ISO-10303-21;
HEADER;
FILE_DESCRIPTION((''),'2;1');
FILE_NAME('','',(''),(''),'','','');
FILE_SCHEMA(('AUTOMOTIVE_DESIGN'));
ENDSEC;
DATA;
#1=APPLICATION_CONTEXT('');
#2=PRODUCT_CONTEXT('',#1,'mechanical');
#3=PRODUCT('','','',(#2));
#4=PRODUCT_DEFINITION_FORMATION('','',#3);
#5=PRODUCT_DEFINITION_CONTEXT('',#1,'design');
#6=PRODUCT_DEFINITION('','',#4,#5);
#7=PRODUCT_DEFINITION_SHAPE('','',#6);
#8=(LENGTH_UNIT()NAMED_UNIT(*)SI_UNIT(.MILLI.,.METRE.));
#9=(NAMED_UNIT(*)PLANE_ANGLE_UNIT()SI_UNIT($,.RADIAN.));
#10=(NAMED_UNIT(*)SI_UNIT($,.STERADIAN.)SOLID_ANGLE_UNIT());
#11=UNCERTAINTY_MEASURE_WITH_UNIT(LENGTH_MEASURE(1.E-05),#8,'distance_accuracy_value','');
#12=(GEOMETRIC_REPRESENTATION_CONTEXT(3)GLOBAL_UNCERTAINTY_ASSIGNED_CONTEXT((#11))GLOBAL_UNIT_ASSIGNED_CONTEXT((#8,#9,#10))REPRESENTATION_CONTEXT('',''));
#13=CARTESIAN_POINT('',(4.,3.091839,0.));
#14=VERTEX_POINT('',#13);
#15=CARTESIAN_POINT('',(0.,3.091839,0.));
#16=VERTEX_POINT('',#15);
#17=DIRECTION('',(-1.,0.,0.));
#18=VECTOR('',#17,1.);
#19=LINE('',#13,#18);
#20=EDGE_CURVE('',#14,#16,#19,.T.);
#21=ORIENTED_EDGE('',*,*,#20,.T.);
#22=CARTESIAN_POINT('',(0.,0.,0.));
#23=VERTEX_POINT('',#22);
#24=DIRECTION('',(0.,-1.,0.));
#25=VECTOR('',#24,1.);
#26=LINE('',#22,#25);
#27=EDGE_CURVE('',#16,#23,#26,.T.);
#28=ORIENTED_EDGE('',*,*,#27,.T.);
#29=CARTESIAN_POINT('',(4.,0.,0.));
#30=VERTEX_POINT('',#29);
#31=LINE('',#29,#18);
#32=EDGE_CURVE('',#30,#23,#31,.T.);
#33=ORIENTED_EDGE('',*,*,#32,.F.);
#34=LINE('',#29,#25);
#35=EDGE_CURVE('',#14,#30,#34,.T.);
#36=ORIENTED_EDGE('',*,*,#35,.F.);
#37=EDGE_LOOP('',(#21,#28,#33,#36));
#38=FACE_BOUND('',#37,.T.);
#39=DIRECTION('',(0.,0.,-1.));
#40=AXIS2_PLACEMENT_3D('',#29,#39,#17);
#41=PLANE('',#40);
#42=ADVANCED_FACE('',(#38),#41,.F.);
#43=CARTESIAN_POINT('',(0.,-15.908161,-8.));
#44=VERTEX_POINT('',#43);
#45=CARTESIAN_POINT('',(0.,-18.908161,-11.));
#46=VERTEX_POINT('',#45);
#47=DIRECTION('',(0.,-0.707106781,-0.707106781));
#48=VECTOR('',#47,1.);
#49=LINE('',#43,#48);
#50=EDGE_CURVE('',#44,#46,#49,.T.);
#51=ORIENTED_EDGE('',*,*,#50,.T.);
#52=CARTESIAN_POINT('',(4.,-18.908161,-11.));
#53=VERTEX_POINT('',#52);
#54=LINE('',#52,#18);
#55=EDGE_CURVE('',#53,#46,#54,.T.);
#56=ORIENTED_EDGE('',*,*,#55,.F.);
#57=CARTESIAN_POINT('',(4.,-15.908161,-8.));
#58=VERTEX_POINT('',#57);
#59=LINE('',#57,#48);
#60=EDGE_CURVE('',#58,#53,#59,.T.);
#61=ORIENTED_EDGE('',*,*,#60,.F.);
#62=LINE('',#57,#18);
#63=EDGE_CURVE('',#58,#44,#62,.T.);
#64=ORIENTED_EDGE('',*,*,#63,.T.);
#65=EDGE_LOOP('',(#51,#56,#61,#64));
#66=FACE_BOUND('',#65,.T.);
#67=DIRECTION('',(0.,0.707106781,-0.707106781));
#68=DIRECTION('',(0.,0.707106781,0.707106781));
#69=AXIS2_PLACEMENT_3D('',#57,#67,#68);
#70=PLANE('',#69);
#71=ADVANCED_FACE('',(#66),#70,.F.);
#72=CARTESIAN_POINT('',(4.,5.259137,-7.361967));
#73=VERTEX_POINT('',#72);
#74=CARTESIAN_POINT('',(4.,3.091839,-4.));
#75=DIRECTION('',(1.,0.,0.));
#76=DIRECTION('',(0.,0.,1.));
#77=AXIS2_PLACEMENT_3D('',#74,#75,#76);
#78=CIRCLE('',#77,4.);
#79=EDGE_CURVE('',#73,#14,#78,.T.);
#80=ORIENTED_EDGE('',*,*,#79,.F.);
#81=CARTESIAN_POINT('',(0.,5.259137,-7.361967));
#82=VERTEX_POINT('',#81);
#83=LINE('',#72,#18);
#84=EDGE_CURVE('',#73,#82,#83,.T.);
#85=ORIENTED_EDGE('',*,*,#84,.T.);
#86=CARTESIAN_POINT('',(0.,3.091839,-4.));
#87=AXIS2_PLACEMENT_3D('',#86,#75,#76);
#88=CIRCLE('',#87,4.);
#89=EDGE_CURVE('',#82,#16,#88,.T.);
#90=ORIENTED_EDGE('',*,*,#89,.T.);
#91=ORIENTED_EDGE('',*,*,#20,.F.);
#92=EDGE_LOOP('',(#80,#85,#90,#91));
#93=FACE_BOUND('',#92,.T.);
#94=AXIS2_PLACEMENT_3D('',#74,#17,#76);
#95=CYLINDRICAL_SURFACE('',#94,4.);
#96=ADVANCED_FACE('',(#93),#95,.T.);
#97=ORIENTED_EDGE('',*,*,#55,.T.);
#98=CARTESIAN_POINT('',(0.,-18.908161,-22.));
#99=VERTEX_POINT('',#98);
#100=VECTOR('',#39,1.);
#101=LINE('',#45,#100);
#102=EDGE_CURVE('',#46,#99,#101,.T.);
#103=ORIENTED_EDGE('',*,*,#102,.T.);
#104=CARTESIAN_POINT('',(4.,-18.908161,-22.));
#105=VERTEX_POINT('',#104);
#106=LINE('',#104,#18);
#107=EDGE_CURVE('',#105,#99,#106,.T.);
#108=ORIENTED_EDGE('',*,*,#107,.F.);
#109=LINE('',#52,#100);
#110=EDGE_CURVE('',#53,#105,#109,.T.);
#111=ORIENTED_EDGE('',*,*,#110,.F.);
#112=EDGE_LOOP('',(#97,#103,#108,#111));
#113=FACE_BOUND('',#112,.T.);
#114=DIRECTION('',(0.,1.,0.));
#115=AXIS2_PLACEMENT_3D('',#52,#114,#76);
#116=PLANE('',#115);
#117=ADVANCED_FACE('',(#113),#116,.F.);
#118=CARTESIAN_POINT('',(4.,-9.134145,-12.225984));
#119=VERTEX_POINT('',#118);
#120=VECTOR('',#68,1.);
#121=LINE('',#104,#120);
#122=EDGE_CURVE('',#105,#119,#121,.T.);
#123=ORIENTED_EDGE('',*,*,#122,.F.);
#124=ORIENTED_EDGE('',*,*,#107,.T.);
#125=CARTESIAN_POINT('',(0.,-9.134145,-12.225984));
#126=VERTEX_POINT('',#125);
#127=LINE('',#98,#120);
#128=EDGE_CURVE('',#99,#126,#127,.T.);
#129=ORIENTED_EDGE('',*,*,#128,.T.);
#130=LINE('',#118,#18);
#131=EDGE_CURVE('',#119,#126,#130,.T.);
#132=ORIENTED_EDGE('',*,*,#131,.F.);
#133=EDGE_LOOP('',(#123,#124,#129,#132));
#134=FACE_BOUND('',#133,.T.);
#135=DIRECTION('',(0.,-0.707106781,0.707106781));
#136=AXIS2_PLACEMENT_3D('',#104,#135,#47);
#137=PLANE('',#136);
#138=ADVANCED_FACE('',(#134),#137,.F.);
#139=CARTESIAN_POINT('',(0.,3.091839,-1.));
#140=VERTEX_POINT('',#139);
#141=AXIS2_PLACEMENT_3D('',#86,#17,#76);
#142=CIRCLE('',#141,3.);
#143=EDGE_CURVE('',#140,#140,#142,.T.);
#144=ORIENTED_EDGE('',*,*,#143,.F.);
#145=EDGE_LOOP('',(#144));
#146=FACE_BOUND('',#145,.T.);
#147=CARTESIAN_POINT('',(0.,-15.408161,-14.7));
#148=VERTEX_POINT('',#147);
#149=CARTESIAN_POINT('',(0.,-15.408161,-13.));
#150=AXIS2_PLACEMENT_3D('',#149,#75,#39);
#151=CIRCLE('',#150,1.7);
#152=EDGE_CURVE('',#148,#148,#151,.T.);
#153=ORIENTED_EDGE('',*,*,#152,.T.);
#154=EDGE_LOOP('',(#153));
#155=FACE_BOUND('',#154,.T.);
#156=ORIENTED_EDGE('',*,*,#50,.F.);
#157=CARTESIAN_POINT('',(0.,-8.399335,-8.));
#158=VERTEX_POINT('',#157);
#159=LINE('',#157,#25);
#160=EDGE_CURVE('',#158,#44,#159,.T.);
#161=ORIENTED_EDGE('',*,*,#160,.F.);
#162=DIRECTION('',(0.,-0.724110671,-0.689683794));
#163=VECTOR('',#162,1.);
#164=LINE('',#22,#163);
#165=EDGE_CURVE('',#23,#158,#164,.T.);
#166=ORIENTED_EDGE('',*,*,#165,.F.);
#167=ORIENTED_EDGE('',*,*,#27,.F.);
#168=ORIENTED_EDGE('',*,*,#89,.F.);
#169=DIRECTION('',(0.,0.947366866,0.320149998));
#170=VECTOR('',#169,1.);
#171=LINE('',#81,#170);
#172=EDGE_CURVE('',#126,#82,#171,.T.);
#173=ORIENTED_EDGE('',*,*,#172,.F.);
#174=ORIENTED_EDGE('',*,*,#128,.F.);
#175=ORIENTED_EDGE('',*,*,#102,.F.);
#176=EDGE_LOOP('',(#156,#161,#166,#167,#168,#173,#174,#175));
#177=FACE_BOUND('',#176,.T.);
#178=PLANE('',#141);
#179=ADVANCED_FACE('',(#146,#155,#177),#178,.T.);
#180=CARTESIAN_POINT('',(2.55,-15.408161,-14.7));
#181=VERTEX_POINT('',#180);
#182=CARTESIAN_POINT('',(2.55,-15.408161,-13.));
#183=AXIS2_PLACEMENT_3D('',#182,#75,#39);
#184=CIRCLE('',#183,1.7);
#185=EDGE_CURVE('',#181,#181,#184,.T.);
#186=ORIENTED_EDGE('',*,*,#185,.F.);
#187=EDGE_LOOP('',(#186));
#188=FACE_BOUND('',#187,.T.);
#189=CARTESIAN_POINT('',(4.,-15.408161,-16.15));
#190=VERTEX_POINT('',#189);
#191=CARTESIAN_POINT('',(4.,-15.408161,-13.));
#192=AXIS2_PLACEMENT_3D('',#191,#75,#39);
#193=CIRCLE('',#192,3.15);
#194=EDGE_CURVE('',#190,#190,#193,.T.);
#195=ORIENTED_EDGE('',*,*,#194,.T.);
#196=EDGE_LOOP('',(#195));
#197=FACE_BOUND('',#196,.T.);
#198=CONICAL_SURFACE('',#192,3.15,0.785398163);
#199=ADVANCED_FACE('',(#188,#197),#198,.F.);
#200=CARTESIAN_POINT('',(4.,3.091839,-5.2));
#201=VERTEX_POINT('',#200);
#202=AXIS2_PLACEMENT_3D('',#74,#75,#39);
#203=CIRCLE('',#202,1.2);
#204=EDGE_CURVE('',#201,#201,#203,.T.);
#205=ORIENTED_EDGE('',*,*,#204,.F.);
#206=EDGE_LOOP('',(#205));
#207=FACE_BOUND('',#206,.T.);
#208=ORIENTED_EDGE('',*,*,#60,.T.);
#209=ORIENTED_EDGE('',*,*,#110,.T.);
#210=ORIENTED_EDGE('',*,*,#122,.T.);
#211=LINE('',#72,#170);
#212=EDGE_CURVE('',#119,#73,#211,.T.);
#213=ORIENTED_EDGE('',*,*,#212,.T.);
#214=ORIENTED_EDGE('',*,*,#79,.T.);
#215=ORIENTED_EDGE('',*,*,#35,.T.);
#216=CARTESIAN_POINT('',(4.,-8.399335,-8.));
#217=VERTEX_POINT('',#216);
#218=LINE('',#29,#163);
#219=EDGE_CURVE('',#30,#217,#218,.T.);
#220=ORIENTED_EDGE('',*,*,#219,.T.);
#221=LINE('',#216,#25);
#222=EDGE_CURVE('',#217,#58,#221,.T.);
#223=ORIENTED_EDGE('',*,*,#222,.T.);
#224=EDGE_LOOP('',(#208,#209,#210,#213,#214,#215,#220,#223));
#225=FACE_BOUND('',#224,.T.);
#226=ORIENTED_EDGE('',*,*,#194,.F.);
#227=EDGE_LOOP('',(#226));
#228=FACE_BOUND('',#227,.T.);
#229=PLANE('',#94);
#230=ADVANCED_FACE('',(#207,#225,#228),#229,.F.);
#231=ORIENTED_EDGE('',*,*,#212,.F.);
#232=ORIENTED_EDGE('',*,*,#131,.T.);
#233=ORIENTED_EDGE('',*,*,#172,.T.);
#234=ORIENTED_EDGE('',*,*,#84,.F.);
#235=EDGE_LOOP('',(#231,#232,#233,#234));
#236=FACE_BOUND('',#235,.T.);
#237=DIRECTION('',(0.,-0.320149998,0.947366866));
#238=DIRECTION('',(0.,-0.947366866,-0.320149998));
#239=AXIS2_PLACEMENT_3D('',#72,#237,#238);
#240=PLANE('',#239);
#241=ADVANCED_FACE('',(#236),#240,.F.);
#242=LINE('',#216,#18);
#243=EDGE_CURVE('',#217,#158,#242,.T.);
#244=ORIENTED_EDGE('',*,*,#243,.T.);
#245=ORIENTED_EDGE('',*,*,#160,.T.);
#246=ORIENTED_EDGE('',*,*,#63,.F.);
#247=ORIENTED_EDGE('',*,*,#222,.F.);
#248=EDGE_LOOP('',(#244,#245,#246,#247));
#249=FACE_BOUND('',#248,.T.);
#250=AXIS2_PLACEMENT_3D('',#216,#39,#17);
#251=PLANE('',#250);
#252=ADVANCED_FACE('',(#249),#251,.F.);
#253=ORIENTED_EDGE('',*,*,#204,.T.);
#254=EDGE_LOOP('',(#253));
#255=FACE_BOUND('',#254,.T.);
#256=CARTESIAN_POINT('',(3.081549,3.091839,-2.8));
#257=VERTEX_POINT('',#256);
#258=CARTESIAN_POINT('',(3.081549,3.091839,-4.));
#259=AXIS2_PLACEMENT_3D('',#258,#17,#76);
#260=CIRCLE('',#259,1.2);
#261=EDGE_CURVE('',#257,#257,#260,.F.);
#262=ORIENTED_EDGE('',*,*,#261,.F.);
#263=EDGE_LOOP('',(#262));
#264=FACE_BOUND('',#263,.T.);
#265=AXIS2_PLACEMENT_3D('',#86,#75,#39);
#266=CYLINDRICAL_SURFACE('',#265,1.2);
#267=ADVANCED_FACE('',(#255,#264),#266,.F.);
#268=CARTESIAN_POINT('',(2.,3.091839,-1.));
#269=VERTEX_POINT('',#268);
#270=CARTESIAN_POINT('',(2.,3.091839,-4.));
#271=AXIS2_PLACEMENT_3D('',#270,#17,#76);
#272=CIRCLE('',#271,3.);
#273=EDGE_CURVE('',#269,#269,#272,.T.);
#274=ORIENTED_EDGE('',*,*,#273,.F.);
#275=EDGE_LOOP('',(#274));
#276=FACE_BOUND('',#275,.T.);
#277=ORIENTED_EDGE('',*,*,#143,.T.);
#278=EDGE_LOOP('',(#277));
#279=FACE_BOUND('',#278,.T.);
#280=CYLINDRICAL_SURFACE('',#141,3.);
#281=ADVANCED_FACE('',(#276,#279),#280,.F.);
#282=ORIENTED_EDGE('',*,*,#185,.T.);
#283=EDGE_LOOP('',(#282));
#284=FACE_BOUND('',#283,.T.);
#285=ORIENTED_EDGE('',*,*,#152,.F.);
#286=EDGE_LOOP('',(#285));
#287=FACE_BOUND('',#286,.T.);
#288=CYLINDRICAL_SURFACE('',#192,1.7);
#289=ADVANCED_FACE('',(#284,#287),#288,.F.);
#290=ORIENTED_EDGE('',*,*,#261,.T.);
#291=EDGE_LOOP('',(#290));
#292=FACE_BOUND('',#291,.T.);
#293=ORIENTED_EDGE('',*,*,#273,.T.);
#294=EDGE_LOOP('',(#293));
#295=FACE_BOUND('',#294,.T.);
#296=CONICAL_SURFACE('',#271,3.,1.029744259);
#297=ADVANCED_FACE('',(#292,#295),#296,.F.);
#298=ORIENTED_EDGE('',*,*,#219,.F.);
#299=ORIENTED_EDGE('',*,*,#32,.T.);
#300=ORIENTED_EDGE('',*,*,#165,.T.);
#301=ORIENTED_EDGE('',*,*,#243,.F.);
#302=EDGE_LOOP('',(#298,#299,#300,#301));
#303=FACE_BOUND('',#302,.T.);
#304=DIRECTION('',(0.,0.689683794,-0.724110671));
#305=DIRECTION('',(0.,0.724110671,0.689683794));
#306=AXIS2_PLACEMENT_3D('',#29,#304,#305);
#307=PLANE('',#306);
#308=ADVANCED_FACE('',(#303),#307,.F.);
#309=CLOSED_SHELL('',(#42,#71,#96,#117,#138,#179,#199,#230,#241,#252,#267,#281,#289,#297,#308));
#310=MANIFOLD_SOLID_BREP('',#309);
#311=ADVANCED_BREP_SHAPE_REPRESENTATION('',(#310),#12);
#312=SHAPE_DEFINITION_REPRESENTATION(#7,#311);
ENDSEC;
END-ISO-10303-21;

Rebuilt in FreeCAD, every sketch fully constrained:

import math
import FreeCAD as App
import Part
import Sketcher

V = App.Vector
Q = App.Units.Quantity

doc = App.newDocument("Part")
params = doc.addObject("Spreadsheet::Sheet", "Params")
for row, (alias, value) in enumerate([
    ("sketch1_radius", "4 mm"),
    ("sketch1_height", "11 mm"),
    ("pad1_length", "4 mm"),
    ("sketch2_diameter", "6 mm"),
    ("hole_diameter", "6 mm"),
    ("hole_depth", "2 mm"),
    ("sketch3_diameter", "2.4 mm"),
    ("sketch4_diameter", "3.4 mm"),
    ("hole2_diameter", "3.4 mm"),
    ("hole2_csink_diameter", "6.3 mm"),
], start=1):
    params.set(f"A{row}", alias)
    params.set(f"B{row}", "=" + value)
    params.setAlias(f"B{row}", alias)

body = doc.addObject("PartDesign::Body", "Body")

sketch1 = doc.addObject("Sketcher::SketchObject", "Sketch")
body.addObject(sketch1)
sketch1.AttachmentSupport = (doc.YZ_Plane, [""])
sketch1.MapMode = "FlatFace"
sketch1.addGeometry([
    Part.LineSegment(V(3.1, 0, 0), V(0, 0, 0)),
    Part.LineSegment(V(0, 0, 0), V(-8.4, -8, 0)),
    Part.LineSegment(V(-8.4, -8, 0), V(-15.9, -8, 0)),
    Part.LineSegment(V(-15.9, -8, 0), V(-18.9, -11, 0)),
    Part.LineSegment(V(-18.9, -11, 0), V(-18.9, -22, 0)),
    Part.LineSegment(V(-18.9, -22, 0), V(-9.1, -12.2, 0)),
    Part.LineSegment(V(-9.1, -12.2, 0), V(5.3, -7.4, 0)),
    Part.ArcOfCircle(Part.Circle(V(3.1, -4, 0), V(0, 0, 1), 4), math.radians(-57), math.radians(90)),
], False)
sketch1.addConstraint([
    Sketcher.Constraint("Coincident", 0, 2, 1, 1),
    Sketcher.Constraint("Coincident", 1, 2, 2, 1),
    Sketcher.Constraint("Coincident", 2, 2, 3, 1),
    Sketcher.Constraint("Coincident", 3, 2, 4, 1),
    Sketcher.Constraint("Coincident", 4, 2, 5, 1),
    Sketcher.Constraint("Coincident", 5, 2, 6, 1),
    Sketcher.Constraint("Coincident", 6, 2, 7, 1),
    Sketcher.Constraint("Tangent", 7, 2, 0, 1),
    Sketcher.Constraint("Horizontal", 0),
    Sketcher.Constraint("Horizontal", 2),
    Sketcher.Constraint("Vertical", 4),
    Sketcher.Constraint("Coincident", 0, 2, -1, 1),
    Sketcher.Constraint("Parallel", 3, 5),
    Sketcher.Constraint("Radius", 7, 4.0),
    Sketcher.Constraint("DistanceY", 4, 2, 4, 1, 11.0),
    Sketcher.Constraint("Angle", 3, Q("-135 deg")),
    Sketcher.Constraint("DistanceY", 1, 2, -1, 1, 8.0),
    Sketcher.Constraint("DistanceY", 3, 2, -1, 1, 11.0),
    Sketcher.Constraint("DistanceX", 2, 2, 7, 3, 19.0),
    Sketcher.Constraint("DistanceX", 0, 2, 0, 1, 3.091839),
    Sketcher.Constraint("Distance", 1, 11.599519),
    Sketcher.Constraint("DistanceX", 5, 2, 1, 2, 0.73481),
    Sketcher.Constraint("Distance", 6, 15.192934),
])
sketch1.setExpression("Constraints[13]", "Params.sketch1_radius")
sketch1.setExpression("Constraints[14]", "Params.sketch1_height")
pad1 = doc.addObject("PartDesign::Pad", "Pad")
body.addObject(pad1)
pad1.Profile = sketch1
pad1.setExpression("Length", "Params.pad1_length")

sketch2 = doc.addObject("Sketcher::SketchObject", "Sketch001")
body.addObject(sketch2)
sketch2.AttachmentSupport = (doc.YZ_Plane, [""])
sketch2.MapMode = "FlatFace"
sketch2.addGeometry(Part.Circle(V(3.1, -4, 0), V(0, 0, 1), 3), False)
sketch2.addConstraint([
    Sketcher.Constraint("Diameter", 0, 6.0),
    Sketcher.Constraint("DistanceY", 0, 3, -1, 1, 4.0),
    Sketcher.Constraint("DistanceX", -1, 1, 0, 3, 3.091839),
])
sketch2.setExpression("Constraints[0]", "Params.sketch2_diameter")
doc.recompute()
hole = doc.addObject("PartDesign::Hole", "Hole")
body.addObject(hole)
hole.Profile = sketch2
hole.ThreadType = "None"
hole.setExpression("Diameter", "Params.hole_diameter")
hole.DepthType = "Dimension"
hole.setExpression("Depth", "Params.hole_depth")
hole.DrillPoint = "Angled"
hole.DrillPointAngle = 118
hole.Reversed = True

sketch3 = doc.addObject("Sketcher::SketchObject", "Sketch002")
body.addObject(sketch3)
sketch3.AttachmentSupport = (doc.YZ_Plane, [""])
sketch3.MapMode = "FlatFace"
sketch3.AttachmentOffset = App.Placement(V(0, 0, 4), App.Rotation())
sketch3.addGeometry(Part.Circle(V(3.1, -4, 0), V(0, 0, 1), 1.2), False)
sketch3.addConstraint([
    Sketcher.Constraint("Diameter", 0, 2.4),
    Sketcher.Constraint("DistanceY", 0, 3, -1, 1, 4.0),
    Sketcher.Constraint("DistanceX", -1, 1, 0, 3, 3.091839),
])
sketch3.setExpression("Constraints[0]", "Params.sketch3_diameter")
pocket1 = doc.addObject("PartDesign::Pocket", "Pocket")
body.addObject(pocket1)
pocket1.Profile = sketch3
pocket1.Type = "ThroughAll"

sketch4 = doc.addObject("Sketcher::SketchObject", "Sketch003")
body.addObject(sketch4)
sketch4.AttachmentSupport = (doc.YZ_Plane, [""])
sketch4.MapMode = "FlatFace"
sketch4.AttachmentOffset = App.Placement(V(0, 0, 4), App.Rotation())
sketch4.addGeometry(Part.Circle(V(-15.4, -13, 0), V(0, 0, 1), 1.7), False)
sketch4.addConstraint([
    Sketcher.Constraint("Diameter", 0, 3.4),
    Sketcher.Constraint("DistanceY", 0, 3, -1, 1, 13.0),
    Sketcher.Constraint("DistanceX", 0, 3, -1, 1, 15.408161),
])
sketch4.setExpression("Constraints[0]", "Params.sketch4_diameter")
doc.recompute()
hole2 = doc.addObject("PartDesign::Hole", "Hole001")
body.addObject(hole2)
hole2.Profile = sketch4
hole2.ThreadType = "None"
hole2.setExpression("Diameter", "Params.hole2_diameter")
hole2.DepthType = "ThroughAll"
hole2.HoleCutType = "Countersink"
hole2.setExpression("HoleCutDiameter", "Params.hole2_csink_diameter")
hole2.HoleCutCountersinkAngle = 90

doc.recompute()
